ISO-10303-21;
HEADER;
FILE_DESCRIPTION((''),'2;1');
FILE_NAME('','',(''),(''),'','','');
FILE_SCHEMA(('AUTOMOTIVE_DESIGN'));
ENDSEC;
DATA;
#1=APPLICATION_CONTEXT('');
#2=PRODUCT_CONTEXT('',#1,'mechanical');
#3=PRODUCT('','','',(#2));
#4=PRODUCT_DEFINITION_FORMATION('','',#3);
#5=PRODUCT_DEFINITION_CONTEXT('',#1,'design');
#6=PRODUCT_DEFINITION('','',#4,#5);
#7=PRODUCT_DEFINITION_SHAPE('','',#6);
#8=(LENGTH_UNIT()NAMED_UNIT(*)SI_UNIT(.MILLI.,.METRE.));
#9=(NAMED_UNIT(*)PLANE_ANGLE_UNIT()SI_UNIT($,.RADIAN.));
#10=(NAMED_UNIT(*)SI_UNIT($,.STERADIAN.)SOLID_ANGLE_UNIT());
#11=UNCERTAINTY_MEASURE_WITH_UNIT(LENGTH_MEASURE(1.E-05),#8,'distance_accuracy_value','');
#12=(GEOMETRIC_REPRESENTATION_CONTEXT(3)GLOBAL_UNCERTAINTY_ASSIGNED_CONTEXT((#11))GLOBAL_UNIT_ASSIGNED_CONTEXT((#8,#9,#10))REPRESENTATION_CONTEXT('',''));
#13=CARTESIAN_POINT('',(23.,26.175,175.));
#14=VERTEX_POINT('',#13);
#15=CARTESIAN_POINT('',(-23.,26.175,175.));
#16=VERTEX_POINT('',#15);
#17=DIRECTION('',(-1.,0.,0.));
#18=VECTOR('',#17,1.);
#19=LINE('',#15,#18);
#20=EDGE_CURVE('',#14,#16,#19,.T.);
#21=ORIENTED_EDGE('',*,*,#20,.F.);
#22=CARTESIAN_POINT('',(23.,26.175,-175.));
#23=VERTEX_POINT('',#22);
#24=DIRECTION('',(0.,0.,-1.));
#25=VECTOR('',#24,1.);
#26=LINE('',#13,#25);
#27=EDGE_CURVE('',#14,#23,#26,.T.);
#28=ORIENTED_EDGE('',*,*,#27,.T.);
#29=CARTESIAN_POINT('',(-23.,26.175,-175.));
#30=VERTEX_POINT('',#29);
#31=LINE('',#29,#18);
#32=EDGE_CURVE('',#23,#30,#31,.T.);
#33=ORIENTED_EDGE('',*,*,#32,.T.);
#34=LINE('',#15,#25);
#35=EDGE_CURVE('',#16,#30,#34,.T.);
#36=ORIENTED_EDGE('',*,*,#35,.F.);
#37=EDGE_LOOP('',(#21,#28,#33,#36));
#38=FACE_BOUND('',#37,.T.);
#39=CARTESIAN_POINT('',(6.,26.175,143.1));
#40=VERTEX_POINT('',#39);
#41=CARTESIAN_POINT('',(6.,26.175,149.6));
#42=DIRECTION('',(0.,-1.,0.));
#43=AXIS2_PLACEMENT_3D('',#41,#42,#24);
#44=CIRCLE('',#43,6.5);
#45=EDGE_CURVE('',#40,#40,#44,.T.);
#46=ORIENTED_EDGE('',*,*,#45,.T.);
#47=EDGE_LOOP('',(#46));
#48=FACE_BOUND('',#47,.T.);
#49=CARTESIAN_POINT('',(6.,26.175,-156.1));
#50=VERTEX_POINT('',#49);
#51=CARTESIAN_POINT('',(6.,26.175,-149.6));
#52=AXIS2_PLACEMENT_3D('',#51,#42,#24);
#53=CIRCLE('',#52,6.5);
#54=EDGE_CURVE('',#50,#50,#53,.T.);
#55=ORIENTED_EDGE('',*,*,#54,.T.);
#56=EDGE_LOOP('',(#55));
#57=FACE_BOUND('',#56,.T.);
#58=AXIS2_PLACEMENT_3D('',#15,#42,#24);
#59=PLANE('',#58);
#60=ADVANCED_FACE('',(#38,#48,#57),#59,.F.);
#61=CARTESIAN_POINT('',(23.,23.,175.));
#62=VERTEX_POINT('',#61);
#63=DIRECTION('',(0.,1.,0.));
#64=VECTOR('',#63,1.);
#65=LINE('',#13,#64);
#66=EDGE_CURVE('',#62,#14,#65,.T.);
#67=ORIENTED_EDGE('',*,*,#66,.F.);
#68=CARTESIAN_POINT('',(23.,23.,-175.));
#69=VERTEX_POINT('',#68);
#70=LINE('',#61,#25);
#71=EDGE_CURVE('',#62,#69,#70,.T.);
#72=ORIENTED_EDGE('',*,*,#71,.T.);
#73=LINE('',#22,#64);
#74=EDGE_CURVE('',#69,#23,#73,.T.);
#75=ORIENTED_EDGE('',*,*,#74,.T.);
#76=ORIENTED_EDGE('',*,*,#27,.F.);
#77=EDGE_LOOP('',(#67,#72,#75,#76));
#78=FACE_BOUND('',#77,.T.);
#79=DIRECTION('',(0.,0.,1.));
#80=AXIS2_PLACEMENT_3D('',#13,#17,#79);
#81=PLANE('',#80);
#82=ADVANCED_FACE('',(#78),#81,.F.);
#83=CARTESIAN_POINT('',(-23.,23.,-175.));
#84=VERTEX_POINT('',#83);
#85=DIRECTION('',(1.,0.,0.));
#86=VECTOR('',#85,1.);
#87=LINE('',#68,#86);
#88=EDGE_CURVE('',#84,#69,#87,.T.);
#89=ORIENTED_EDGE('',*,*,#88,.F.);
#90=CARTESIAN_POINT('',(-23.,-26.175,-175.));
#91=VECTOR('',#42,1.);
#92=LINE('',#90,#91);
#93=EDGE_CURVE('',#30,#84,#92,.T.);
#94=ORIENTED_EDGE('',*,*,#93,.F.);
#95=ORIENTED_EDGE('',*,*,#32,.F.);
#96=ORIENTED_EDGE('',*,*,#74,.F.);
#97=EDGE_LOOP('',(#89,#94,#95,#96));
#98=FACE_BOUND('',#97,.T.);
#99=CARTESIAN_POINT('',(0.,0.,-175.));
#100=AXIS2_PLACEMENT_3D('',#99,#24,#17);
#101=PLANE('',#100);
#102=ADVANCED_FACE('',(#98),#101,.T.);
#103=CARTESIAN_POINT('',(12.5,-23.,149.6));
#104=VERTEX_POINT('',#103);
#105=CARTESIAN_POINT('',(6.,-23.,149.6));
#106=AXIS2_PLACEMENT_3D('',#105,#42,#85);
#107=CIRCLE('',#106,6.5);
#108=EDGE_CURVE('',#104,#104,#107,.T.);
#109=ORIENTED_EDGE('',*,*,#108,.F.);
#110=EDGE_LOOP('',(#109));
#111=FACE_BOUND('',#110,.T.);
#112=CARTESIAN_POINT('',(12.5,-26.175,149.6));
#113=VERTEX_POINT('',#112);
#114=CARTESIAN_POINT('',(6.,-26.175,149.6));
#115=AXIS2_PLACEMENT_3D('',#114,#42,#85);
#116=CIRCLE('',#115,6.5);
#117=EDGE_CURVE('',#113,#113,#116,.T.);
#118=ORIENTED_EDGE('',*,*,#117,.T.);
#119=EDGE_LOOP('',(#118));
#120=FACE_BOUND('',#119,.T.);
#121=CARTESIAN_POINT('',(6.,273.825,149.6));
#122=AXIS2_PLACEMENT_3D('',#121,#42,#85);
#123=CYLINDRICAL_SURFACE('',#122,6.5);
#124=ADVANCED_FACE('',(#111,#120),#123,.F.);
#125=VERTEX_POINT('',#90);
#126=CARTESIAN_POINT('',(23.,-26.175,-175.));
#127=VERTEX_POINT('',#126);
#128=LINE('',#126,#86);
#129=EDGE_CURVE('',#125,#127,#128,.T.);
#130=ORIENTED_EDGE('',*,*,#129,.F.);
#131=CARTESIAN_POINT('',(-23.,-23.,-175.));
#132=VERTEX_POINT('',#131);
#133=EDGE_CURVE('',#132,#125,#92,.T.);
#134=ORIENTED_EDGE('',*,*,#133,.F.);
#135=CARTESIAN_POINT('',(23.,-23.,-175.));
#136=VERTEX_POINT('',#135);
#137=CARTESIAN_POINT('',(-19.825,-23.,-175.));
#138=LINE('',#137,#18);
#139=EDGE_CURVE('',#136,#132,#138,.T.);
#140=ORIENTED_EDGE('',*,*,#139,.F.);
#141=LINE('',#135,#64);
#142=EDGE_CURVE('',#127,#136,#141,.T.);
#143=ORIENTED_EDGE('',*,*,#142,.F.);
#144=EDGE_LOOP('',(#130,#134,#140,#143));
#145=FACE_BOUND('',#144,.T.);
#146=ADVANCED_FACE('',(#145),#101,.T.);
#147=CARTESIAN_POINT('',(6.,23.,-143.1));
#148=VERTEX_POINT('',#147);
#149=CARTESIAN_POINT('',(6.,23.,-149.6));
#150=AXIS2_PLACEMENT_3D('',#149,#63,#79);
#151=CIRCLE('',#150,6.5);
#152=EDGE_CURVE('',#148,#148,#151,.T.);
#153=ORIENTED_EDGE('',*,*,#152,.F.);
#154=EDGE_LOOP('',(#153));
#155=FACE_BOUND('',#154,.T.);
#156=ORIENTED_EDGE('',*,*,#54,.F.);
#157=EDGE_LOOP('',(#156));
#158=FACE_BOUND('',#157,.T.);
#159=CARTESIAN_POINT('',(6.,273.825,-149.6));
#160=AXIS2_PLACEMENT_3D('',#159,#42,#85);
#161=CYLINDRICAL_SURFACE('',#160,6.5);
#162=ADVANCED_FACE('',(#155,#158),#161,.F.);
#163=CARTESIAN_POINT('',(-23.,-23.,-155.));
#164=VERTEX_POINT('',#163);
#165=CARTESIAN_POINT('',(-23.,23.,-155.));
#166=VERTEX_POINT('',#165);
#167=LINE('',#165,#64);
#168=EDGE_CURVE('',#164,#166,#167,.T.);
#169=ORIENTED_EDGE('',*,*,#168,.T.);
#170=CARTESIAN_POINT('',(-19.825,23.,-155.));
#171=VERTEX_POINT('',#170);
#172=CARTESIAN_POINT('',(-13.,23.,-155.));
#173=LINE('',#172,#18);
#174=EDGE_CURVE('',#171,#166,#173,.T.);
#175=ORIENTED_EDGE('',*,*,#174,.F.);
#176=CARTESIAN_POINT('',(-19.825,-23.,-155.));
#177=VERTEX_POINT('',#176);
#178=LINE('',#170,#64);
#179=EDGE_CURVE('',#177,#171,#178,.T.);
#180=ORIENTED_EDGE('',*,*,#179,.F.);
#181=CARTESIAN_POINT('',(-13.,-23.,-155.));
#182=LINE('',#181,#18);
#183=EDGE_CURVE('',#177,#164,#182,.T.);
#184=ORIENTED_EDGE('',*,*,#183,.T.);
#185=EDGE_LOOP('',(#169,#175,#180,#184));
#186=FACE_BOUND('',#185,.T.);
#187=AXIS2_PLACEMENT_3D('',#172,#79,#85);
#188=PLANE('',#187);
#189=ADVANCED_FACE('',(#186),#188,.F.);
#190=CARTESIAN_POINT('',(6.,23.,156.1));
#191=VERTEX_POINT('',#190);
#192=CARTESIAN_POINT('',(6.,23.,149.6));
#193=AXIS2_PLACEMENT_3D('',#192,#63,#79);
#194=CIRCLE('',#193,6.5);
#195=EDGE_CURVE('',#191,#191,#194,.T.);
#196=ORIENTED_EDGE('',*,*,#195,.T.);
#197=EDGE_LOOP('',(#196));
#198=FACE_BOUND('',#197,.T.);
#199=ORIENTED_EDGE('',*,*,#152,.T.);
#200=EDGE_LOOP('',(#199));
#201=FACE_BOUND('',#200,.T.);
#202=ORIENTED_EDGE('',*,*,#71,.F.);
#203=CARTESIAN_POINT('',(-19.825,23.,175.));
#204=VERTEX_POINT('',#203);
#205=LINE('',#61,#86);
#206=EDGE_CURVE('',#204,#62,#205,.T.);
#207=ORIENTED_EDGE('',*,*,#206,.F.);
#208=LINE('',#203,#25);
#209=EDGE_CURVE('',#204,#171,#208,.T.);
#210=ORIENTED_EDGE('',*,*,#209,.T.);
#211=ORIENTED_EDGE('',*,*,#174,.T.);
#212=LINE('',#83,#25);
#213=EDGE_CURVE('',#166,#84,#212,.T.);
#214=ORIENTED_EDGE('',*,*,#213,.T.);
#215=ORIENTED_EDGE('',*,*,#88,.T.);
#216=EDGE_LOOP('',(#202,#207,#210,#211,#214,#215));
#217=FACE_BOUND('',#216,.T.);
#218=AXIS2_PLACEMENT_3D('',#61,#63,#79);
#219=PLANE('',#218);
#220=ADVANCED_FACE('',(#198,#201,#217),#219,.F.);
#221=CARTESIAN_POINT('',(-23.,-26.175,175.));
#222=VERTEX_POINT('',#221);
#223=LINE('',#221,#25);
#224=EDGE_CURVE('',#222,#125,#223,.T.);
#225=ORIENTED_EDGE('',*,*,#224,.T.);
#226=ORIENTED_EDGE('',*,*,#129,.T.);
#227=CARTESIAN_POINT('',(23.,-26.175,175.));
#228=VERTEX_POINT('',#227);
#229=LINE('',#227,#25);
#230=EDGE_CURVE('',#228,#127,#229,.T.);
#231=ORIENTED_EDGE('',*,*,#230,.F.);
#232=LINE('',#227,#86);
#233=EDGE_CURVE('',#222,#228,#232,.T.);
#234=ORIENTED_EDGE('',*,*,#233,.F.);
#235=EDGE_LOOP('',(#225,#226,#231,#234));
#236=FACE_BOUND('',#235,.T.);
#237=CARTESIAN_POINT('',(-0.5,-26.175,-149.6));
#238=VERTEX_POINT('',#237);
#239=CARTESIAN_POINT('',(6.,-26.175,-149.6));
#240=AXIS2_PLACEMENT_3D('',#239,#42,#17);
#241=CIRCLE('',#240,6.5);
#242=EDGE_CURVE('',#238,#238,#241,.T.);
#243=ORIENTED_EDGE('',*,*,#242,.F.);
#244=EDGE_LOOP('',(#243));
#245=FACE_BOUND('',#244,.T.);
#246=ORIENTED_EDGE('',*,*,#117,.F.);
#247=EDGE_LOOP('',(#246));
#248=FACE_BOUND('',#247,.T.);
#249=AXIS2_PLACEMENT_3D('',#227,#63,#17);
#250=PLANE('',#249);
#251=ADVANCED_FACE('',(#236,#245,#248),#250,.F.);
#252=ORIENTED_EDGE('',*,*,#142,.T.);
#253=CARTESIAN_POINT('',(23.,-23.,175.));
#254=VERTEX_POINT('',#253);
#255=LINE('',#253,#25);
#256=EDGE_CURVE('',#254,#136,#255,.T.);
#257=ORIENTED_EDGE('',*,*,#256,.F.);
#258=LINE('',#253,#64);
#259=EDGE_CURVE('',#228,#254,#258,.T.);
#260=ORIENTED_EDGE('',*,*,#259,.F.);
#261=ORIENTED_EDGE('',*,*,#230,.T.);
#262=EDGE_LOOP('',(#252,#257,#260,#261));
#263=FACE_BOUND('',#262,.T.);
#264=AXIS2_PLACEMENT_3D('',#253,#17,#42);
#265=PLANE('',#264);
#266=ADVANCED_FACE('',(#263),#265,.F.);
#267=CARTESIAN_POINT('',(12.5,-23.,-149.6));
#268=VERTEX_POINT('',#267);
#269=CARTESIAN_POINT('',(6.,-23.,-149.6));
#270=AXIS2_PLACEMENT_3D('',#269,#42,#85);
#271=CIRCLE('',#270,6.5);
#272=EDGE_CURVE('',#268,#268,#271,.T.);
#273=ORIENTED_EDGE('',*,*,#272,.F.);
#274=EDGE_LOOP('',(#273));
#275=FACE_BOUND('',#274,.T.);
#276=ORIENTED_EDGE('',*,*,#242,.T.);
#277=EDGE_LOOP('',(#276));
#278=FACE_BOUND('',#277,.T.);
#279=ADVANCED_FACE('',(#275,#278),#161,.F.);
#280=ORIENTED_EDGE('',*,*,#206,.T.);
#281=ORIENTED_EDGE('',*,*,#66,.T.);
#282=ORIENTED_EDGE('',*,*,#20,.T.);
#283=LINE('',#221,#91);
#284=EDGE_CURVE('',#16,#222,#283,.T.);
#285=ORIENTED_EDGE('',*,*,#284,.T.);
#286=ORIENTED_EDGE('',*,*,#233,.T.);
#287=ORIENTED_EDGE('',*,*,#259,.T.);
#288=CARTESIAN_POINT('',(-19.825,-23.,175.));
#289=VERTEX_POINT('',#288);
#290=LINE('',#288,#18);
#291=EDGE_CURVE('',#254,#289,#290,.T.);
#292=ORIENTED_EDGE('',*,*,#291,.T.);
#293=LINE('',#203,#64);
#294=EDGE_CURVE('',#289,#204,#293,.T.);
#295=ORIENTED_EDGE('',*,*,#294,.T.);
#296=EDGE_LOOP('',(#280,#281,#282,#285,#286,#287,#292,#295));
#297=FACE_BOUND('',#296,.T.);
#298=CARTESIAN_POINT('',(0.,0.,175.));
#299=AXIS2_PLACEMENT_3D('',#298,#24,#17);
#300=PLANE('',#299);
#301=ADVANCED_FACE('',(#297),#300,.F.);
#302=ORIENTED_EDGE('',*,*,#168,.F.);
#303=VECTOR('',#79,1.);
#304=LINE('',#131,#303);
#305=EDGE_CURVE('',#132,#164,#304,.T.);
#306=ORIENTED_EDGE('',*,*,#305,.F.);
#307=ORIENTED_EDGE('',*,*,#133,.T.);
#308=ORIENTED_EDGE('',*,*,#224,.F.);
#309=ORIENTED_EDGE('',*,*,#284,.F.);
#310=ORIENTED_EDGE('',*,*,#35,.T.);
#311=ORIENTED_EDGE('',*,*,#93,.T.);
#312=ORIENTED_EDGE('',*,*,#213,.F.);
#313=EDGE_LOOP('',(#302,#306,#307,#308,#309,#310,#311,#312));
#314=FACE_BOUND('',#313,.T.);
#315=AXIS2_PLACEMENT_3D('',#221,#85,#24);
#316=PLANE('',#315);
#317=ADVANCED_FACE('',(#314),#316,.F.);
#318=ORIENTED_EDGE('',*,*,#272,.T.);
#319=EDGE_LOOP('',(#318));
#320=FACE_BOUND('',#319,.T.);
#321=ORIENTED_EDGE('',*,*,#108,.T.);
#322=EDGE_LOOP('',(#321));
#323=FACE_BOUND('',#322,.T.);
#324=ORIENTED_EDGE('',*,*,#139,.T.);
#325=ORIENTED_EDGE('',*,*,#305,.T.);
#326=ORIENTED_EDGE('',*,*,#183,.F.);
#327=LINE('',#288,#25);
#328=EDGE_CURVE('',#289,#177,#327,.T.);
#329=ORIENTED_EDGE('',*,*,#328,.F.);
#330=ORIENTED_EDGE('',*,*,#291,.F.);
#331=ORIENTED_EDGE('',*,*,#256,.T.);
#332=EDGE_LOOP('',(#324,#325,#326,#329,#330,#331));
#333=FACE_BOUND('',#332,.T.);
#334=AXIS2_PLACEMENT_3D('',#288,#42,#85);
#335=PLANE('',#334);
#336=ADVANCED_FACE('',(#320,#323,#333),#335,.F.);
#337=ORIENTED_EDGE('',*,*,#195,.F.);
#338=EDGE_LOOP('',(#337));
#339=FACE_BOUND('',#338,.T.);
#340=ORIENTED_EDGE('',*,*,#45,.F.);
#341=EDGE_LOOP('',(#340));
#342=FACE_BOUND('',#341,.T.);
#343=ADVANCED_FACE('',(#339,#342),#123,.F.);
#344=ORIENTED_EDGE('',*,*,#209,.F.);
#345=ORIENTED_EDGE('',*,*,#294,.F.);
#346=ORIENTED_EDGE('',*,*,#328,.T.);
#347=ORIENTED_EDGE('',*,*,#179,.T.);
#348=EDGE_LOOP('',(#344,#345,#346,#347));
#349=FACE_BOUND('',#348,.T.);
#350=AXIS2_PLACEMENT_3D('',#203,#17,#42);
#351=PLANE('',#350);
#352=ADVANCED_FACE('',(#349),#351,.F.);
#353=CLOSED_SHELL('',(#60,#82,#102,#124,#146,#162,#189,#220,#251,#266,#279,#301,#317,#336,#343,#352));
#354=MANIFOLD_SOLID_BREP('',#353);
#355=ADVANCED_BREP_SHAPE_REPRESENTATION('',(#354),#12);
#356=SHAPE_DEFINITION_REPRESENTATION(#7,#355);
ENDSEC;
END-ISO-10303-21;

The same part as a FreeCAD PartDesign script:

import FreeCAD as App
import Part
import Sketcher

doc = App.newDocument("Part")
body = doc.addObject("PartDesign::Body", "Body")

sketch1 = doc.addObject("Sketcher::SketchObject", "Sketch")
body.addObject(sketch1)
sketch1.AttachmentSupport = (doc.XY_Plane, [""])
sketch1.MapMode = "FlatFace"
sketch1.addGeometry(Part.LineSegment(App.Vector(-19.8, 23, 0), App.Vector(23, 23, 0)), False)
sketch1.addGeometry(Part.LineSegment(App.Vector(23, 23, 0), App.Vector(23, 26.2, 0)), False)
sketch1.addGeometry(Part.LineSegment(App.Vector(23, 26.2, 0), App.Vector(-23, 26.2, 0)), False)
sketch1.addGeometry(Part.LineSegment(App.Vector(-23, 26.2, 0), App.Vector(-23, -26.2, 0)), False)
sketch1.addGeometry(Part.LineSegment(App.Vector(-23, -26.2, 0), App.Vector(23, -26.2, 0)), False)
sketch1.addGeometry(Part.LineSegment(App.Vector(23, -26.2, 0), App.Vector(23, -23, 0)), False)
sketch1.addGeometry(Part.LineSegment(App.Vector(23, -23, 0), App.Vector(-19.8, -23, 0)), False)
sketch1.addGeometry(Part.LineSegment(App.Vector(-19.8, -23, 0), App.Vector(-19.8, 23, 0)), False)
sketch1.addConstraint(Sketcher.Constraint("Coincident", 0, 2, 1, 1))
sketch1.addConstraint(Sketcher.Constraint("Coincident", 1, 2, 2, 1))
sketch1.addConstraint(Sketcher.Constraint("Coincident", 2, 2, 3, 1))
sketch1.addConstraint(Sketcher.Constraint("Coincident", 3, 2, 4, 1))
sketch1.addConstraint(Sketcher.Constraint("Coincident", 4, 2, 5, 1))
sketch1.addConstraint(Sketcher.Constraint("Coincident", 5, 2, 6, 1))
sketch1.addConstraint(Sketcher.Constraint("Coincident", 6, 2, 7, 1))
sketch1.addConstraint(Sketcher.Constraint("Coincident", 7, 2, 0, 1))
sketch1.addConstraint(Sketcher.Constraint("Horizontal", 0))
sketch1.addConstraint(Sketcher.Constraint("Vertical", 1))
sketch1.addConstraint(Sketcher.Constraint("Horizontal", 2))
sketch1.addConstraint(Sketcher.Constraint("Vertical", 3))
sketch1.addConstraint(Sketcher.Constraint("Horizontal", 4))
sketch1.addConstraint(Sketcher.Constraint("Vertical", 5))
sketch1.addConstraint(Sketcher.Constraint("Horizontal", 6))
sketch1.addConstraint(Sketcher.Constraint("Vertical", 7))
sketch1.addConstraint(Sketcher.Constraint("Symmetric", 1, 2, 3, 2, -1, 1))
sketch1.addConstraint(Sketcher.Constraint("Symmetric", 0, 2, 5, 2, -1))
sketch1.addConstraint(Sketcher.Constraint("Equal", 4, 7))
sketch1.addConstraint(Sketcher.Constraint("DistanceX", 2, 2, 2, 1, 46.0))
sketch1.addConstraint(Sketcher.Constraint("DistanceY", 3, 2, 3, 1, 52.35))
sketch1.addConstraint(Sketcher.Constraint("DistanceX", 0, 1, 0, 2, 42.825))
pad1 = doc.addObject("PartDesign::Pad", "Pad")
body.addObject(pad1)
pad1.Profile = sketch1
pad1.Length = 350
pad1.Midplane = True

sketch2 = doc.addObject("Sketcher::SketchObject", "Sketch001")
body.addObject(sketch2)
sketch2.AttachmentSupport = (doc.XZ_Plane, [""])
sketch2.MapMode = "FlatFace"
sketch2.AttachmentOffset = App.Placement(App.Vector(0, 0, 26.175), App.Rotation())
sketch2.addGeometry(Part.Circle(App.Vector(6, 150, 0), App.Vector(0, 0, 1), 6), False)
sketch2.addGeometry(Part.Circle(App.Vector(6, -150, 0), App.Vector(0, 0, 1), 6), False)
sketch2.addConstraint(Sketcher.Constraint("Equal", 0, 1))
sketch2.addConstraint(Sketcher.Constraint("Symmetric", 0, 3, 1, 3, -1))
sketch2.addConstraint(Sketcher.Constraint("Diameter", 0, 13.0))
sketch2.addConstraint(Sketcher.Constraint("DistanceX", -1, 1, 0, 3, 6.0))
sketch2.addConstraint(Sketcher.Constraint("DistanceY", -1, 1, 0, 3, 149.6))
pocket1 = doc.addObject("PartDesign::Pocket", "Pocket")
body.addObject(pocket1)
pocket1.Profile = sketch2
pocket1.Length = 300

sketch3 = doc.addObject("Sketcher::SketchObject", "Sketch002")
body.addObject(sketch3)
sketch3.AttachmentSupport = (doc.YZ_Plane, [""])
sketch3.MapMode = "FlatFace"
sketch3.AttachmentOffset = App.Placement(App.Vector(0, 0, -23), App.Rotation())
sketch3.addGeometry(Part.LineSegment(App.Vector(23, -175, 0), App.Vector(-23, -175, 0)), False)
sketch3.addGeometry(Part.LineSegment(App.Vector(-23, -175, 0), App.Vector(-23, -155, 0)), False)
sketch3.addGeometry(Part.LineSegment(App.Vector(-23, -155, 0), App.Vector(23, -155, 0)), False)
sketch3.addGeometry(Part.LineSegment(App.Vector(23, -155, 0), App.Vector(23, -175, 0)), False)
sketch3.addConstraint(Sketcher.Constraint("Coincident", 0, 2, 1, 1))
sketch3.addConstraint(Sketcher.Constraint("Coincident", 1, 2, 2, 1))
sketch3.addConstraint(Sketcher.Constraint("Coincident", 2, 2, 3, 1))
sketch3.addConstraint(Sketcher.Constraint("Coincident", 3, 2, 0, 1))
sketch3.addConstraint(Sketcher.Constraint("Horizontal", 0))
sketch3.addConstraint(Sketcher.Constraint("Vertical", 1))
sketch3.addConstraint(Sketcher.Constraint("Horizontal", 2))
sketch3.addConstraint(Sketcher.Constraint("Vertical", 3))
sketch3.addConstraint(Sketcher.Constraint("DistanceX", 0, 2, 0, 1, 46.0))
sketch3.addConstraint(Sketcher.Constraint("DistanceY", 1, 1, 1, 2, 20.0))
sketch3.addConstraint(Sketcher.Constraint("DistanceX", 0, 2, -1, 1, 23.0))
sketch3.addConstraint(Sketcher.Constraint("DistanceY", 0, 2, -1, 1, 175.0))
pocket2 = doc.addObject("PartDesign::Pocket", "Pocket001")
body.addObject(pocket2)
pocket2.Profile = sketch3
pocket2.Length = 10
pocket2.Reversed = True

doc.recompute()
